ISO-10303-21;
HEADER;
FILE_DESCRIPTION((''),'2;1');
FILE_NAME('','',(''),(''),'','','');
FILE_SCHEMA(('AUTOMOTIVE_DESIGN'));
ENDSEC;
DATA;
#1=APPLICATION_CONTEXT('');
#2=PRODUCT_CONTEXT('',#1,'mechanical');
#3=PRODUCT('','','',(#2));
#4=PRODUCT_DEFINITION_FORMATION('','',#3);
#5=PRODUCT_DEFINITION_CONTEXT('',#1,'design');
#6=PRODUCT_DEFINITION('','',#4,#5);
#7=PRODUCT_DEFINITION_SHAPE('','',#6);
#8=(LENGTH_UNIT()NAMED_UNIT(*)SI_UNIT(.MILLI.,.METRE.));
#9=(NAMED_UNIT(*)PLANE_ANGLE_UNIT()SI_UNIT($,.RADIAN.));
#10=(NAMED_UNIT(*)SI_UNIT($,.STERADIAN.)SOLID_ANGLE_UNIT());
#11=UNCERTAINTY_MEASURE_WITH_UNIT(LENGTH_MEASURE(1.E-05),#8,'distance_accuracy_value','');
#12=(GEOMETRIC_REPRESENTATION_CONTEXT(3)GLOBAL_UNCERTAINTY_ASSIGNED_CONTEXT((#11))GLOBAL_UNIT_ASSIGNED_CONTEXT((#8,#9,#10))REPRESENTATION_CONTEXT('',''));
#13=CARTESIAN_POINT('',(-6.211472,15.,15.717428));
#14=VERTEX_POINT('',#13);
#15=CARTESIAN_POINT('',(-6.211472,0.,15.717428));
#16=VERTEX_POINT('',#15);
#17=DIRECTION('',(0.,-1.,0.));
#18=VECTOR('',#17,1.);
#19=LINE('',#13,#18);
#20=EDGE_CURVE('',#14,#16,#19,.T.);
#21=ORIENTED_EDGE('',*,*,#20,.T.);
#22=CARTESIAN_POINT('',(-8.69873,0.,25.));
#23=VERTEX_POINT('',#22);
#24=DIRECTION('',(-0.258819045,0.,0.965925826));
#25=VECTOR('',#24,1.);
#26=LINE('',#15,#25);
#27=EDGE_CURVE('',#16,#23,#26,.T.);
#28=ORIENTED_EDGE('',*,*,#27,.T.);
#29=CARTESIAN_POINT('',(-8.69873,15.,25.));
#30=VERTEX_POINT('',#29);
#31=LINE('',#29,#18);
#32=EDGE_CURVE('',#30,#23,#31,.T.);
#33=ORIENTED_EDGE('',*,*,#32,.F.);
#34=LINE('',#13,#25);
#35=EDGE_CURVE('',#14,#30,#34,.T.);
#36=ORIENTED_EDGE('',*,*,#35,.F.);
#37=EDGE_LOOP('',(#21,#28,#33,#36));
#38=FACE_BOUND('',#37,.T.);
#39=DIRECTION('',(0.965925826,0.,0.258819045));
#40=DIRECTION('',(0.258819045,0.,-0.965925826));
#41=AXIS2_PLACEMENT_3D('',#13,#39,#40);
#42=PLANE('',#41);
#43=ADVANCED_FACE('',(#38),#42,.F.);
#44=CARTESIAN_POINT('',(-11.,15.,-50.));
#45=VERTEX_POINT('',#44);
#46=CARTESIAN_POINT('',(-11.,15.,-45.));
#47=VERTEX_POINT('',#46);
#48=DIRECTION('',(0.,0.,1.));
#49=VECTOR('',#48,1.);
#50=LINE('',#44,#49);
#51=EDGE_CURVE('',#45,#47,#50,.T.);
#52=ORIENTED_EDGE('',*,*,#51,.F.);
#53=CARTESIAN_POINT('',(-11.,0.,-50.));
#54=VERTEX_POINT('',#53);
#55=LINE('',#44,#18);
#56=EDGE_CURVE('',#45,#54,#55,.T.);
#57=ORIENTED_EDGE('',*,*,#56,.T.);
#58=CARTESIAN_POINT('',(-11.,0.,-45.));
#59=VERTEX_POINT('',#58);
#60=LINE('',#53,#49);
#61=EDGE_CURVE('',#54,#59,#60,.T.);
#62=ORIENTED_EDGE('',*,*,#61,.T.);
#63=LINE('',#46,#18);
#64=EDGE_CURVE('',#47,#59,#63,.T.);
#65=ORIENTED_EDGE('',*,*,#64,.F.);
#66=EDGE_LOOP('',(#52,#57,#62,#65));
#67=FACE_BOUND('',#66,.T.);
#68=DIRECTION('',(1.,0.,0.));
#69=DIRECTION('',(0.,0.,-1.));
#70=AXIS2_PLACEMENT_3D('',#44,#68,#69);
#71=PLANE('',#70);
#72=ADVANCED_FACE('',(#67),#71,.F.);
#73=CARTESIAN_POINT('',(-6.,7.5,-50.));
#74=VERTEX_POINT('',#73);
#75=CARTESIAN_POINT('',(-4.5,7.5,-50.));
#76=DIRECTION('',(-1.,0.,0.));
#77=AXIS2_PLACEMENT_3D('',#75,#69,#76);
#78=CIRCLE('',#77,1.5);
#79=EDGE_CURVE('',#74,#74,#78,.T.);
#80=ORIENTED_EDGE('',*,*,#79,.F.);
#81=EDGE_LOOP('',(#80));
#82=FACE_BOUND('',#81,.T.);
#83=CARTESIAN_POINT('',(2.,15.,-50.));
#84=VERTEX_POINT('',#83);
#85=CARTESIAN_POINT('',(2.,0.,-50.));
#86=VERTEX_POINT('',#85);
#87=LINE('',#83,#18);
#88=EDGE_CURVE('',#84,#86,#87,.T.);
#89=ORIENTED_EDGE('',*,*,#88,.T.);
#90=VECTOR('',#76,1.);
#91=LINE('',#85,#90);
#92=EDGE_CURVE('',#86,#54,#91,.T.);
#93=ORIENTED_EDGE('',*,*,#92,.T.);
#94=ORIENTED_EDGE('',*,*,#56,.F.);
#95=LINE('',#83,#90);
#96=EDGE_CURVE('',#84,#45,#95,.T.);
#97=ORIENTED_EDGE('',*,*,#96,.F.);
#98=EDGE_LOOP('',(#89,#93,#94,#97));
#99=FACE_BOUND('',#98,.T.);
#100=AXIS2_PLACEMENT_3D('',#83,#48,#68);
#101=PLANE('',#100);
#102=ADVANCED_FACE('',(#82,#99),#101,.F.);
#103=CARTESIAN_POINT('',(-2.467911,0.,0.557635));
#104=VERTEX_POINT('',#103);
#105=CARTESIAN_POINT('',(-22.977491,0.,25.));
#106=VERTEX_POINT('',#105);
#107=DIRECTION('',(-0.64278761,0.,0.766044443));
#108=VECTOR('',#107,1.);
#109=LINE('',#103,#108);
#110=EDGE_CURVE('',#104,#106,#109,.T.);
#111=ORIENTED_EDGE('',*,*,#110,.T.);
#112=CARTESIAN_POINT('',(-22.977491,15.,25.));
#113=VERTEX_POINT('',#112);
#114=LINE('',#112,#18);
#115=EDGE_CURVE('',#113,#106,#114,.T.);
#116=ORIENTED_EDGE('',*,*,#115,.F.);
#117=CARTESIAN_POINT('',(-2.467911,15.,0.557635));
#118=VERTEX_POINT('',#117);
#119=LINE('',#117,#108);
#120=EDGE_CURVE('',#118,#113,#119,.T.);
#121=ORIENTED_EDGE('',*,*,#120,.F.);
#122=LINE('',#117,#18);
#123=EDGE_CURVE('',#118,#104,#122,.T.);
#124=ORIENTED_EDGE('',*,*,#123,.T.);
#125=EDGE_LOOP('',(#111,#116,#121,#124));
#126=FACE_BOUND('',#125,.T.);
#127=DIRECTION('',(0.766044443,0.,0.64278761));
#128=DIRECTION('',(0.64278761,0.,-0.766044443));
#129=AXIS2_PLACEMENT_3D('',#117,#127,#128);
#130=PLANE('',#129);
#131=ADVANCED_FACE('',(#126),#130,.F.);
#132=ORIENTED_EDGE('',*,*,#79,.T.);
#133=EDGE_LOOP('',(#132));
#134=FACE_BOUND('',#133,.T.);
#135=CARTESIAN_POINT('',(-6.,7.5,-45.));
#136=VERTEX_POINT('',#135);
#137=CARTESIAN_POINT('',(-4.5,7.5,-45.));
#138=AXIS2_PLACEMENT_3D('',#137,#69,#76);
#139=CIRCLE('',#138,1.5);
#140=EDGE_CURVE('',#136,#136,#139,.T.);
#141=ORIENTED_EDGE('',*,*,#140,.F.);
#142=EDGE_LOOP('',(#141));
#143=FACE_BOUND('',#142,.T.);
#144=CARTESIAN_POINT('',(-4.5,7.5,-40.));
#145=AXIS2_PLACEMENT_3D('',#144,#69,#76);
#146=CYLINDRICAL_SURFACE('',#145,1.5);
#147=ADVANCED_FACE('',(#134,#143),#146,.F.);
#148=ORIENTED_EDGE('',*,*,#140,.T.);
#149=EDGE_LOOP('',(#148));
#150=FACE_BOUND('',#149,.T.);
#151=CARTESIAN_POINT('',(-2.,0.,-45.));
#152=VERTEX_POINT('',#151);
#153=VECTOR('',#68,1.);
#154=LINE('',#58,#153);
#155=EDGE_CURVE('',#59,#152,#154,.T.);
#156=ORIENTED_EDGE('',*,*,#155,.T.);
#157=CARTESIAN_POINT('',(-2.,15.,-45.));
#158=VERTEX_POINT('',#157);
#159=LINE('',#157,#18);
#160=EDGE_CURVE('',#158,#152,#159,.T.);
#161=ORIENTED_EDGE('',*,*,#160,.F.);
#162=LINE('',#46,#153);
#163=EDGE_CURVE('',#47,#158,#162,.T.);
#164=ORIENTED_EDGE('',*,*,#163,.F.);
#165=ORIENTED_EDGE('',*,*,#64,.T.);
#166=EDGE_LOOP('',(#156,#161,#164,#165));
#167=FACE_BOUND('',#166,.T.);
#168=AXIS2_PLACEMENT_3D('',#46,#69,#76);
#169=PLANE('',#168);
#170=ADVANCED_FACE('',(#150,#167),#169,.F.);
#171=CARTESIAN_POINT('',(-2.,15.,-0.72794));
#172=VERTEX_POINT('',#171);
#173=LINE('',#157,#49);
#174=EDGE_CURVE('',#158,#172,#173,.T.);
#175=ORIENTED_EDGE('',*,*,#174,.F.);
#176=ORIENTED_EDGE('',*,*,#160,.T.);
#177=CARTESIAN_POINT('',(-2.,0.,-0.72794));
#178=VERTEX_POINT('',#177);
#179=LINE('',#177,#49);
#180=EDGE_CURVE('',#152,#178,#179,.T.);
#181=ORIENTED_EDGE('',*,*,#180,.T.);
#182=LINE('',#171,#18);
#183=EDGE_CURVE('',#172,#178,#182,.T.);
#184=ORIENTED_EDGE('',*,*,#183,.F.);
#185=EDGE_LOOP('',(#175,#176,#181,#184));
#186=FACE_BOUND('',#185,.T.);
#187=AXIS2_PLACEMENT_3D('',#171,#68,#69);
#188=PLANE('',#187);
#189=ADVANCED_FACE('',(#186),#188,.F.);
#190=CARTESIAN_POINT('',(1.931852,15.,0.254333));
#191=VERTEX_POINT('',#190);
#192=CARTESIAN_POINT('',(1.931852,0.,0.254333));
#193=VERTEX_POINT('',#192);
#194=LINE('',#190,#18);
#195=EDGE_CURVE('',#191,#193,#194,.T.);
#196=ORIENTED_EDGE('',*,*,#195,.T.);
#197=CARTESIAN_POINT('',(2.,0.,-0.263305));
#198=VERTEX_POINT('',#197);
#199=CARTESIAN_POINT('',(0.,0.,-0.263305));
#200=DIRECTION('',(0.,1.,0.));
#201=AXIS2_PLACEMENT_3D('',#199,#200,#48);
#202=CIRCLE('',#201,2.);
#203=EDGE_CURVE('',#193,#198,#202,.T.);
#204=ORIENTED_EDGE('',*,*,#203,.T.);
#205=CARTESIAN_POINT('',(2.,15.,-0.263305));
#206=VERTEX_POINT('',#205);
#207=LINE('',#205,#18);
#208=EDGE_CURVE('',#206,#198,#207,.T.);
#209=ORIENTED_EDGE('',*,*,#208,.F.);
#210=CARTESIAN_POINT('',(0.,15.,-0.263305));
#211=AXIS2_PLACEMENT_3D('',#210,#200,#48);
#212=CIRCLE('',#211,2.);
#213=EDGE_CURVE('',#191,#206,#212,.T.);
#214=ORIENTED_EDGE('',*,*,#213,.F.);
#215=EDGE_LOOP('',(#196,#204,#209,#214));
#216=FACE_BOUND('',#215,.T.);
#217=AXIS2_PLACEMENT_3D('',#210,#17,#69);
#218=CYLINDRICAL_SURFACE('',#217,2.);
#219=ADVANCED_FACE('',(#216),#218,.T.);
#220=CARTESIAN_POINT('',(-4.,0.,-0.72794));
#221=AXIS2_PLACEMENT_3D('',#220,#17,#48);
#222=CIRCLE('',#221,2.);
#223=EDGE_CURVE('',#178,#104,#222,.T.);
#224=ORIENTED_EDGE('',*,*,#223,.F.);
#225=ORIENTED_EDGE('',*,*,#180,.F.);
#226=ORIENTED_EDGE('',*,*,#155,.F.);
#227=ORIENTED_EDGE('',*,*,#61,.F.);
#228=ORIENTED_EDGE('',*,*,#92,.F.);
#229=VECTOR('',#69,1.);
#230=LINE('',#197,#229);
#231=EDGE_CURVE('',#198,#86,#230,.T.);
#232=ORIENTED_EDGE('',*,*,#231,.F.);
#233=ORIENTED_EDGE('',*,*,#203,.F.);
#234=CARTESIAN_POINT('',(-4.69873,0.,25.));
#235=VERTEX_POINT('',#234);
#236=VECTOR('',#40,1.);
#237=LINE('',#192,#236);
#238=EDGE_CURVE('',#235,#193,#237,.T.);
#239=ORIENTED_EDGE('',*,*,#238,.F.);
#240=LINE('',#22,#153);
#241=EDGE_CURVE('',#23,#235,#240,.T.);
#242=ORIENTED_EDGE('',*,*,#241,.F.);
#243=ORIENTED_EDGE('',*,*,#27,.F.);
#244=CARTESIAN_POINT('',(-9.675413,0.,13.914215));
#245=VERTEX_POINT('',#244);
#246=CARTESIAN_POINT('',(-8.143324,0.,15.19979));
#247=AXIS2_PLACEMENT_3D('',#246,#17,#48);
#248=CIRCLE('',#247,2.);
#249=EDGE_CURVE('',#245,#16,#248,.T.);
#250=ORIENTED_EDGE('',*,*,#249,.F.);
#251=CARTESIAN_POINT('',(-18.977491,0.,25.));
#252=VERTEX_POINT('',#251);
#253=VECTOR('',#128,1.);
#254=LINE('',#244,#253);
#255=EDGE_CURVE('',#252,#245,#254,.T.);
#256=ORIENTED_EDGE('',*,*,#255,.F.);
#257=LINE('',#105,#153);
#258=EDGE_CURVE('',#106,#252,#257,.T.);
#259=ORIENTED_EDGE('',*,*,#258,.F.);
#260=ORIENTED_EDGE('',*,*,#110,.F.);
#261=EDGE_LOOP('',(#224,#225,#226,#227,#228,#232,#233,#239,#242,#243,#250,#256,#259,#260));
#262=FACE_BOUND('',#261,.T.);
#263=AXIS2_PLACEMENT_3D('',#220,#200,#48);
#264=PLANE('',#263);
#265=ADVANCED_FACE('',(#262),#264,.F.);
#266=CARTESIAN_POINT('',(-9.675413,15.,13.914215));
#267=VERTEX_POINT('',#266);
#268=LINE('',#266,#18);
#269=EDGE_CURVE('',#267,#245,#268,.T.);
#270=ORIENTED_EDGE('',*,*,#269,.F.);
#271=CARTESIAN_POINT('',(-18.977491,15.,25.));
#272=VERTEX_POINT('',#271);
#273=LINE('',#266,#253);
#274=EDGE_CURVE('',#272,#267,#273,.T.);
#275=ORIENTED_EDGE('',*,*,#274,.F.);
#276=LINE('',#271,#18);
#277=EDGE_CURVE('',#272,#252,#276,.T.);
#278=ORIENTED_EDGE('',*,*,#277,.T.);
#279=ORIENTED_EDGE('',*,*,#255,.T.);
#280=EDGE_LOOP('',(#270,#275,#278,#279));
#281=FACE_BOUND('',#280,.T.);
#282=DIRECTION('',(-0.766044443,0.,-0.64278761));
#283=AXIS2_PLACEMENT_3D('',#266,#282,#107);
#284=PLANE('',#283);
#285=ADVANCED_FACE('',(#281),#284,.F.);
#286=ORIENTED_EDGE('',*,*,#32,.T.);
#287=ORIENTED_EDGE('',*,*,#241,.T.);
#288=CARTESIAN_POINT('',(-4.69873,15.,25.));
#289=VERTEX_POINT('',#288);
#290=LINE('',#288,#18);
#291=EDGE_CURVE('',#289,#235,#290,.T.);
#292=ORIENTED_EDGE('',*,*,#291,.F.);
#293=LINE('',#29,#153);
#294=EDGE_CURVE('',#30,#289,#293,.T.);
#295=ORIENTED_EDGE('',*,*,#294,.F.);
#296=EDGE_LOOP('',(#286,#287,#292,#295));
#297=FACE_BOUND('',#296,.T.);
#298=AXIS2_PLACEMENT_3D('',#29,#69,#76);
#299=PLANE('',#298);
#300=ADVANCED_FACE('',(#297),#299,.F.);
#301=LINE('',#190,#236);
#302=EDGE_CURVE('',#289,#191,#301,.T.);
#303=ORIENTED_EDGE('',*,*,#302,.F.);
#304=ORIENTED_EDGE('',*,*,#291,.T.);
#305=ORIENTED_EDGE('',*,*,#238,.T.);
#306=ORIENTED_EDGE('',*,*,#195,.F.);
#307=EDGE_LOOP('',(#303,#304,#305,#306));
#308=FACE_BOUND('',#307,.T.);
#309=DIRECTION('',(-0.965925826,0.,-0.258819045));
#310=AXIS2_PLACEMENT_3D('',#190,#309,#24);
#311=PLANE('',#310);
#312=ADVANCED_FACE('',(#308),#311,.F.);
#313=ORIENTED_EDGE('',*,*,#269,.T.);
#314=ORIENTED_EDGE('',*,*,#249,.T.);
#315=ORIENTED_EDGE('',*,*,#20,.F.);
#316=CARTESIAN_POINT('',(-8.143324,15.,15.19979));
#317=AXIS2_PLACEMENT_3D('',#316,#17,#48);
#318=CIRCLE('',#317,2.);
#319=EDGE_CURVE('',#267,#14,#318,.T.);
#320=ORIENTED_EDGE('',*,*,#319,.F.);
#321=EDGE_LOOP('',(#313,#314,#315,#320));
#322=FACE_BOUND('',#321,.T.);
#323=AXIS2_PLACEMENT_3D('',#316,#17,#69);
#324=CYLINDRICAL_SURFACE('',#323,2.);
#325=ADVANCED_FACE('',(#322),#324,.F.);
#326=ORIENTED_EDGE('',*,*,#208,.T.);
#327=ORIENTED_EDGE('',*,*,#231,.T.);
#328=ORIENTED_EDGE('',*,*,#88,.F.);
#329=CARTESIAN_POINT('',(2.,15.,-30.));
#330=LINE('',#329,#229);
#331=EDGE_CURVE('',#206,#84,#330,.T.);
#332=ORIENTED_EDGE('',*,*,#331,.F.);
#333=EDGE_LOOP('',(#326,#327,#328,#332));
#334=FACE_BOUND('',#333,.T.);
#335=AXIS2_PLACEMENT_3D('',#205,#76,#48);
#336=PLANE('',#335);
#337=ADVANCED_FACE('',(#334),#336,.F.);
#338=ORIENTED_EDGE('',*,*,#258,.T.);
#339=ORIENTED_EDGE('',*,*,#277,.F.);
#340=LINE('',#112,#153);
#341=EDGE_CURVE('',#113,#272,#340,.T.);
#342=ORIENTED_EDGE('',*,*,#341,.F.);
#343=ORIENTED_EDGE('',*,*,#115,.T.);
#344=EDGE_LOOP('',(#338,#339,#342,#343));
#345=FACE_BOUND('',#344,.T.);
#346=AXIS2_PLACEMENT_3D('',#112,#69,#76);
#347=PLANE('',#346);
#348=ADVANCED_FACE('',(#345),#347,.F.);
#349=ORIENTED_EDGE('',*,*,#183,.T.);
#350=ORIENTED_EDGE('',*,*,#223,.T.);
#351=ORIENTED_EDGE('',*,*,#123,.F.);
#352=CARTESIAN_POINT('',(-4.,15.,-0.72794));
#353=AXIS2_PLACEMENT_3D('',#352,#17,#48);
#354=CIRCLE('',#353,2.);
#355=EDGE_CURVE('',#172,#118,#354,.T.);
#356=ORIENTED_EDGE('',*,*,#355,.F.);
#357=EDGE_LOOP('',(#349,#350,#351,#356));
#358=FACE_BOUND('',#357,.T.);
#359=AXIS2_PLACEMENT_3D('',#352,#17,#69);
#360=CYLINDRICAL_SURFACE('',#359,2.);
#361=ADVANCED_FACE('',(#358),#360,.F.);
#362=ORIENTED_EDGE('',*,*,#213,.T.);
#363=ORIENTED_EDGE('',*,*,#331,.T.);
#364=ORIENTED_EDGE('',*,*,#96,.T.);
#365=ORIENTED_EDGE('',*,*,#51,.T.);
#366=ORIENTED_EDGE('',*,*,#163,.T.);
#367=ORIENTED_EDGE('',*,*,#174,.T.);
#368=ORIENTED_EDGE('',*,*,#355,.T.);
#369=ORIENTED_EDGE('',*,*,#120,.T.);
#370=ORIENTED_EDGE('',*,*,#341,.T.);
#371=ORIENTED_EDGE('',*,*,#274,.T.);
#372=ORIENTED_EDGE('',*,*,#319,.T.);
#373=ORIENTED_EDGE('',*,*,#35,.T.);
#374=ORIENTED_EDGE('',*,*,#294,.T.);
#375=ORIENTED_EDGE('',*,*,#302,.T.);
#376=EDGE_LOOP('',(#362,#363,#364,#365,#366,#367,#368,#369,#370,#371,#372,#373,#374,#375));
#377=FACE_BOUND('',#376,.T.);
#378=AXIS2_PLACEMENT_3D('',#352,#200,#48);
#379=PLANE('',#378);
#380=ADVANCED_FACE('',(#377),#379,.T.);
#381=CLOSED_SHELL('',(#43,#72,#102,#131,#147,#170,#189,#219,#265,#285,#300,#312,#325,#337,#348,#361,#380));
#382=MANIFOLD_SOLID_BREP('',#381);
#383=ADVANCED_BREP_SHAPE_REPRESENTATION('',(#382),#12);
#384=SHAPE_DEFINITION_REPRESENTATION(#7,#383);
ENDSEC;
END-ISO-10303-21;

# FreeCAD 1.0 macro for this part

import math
import FreeCAD as App
import Part
import Sketcher
from FreeCAD import Vector
Q = App.Units.Quantity

doc = App.newDocument("Part")
body = doc.addObject("PartDesign::Body", "Body")

# Sketch on XZ plane
sketch1 = body.newObject("Sketcher::SketchObject", "Sketch")
sketch1.AttachmentSupport = (doc.getObject("XZ_Plane"), [""])
sketch1.MapMode = "FlatFace"
sketch1.addGeometry(Part.LineSegment(Vector(-2, -45, 0), Vector(-2, -0.72794, 0)), False)
sketch1.addGeometry(Part.ArcOfCircle(Part.Circle(Vector(-4, -0.72794, 0), Vector(0, 0, 1), 2), math.radians(0), math.radians(40)), False)
sketch1.addGeometry(Part.LineSegment(Vector(-2.467911, 0.557635, 0), Vector(-22.977491, 25, 0)), False)
sketch1.addGeometry(Part.LineSegment(Vector(-22.977491, 25, 0), Vector(-18.977491, 25, 0)), False)
sketch1.addGeometry(Part.LineSegment(Vector(-18.977491, 25, 0), Vector(-9.675413, 13.914215, 0)), False)
sketch1.addGeometry(Part.ArcOfCircle(Part.Circle(Vector(-8.143324, 15.19979, 0), Vector(0, 0, 1), 2), math.radians(-140), math.radians(15)), False)
sketch1.addGeometry(Part.LineSegment(Vector(-6.211472, 15.717428, 0), Vector(-8.69873, 25, 0)), False)
sketch1.addGeometry(Part.LineSegment(Vector(-8.69873, 25, 0), Vector(-4.69873, 25, 0)), False)
sketch1.addGeometry(Part.LineSegment(Vector(-4.69873, 25, 0), Vector(1.931852, 0.254333, 0)), False)
sketch1.addGeometry(Part.ArcOfCircle(Part.Circle(Vector(0, -0.263305, 0), Vector(0, 0, 1), 2), math.radians(0), math.radians(15)), False)
sketch1.addGeometry(Part.LineSegment(Vector(2, -0.263305, 0), Vector(2, -50, 0)), False)
sketch1.addGeometry(Part.LineSegment(Vector(2, -50, 0), Vector(-11, -50, 0)), False)
sketch1.addGeometry(Part.LineSegment(Vector(-11, -50, 0), Vector(-11, -45, 0)), False)
sketch1.addGeometry(Part.LineSegment(Vector(-11, -45, 0), Vector(-2, -45, 0)), False)
sketch1.addConstraint(Sketcher.Constraint("Tangent", 0, 2, 1, 1))
sketch1.addConstraint(Sketcher.Constraint("Tangent", 1, 2, 2, 1))
sketch1.addConstraint(Sketcher.Constraint("Coincident", 2, 2, 3, 1))
sketch1.addConstraint(Sketcher.Constraint("Coincident", 3, 2, 4, 1))
sketch1.addConstraint(Sketcher.Constraint("Tangent", 4, 2, 5, 1))
sketch1.addConstraint(Sketcher.Constraint("Tangent", 5, 2, 6, 1))
sketch1.addConstraint(Sketcher.Constraint("Coincident", 6, 2, 7, 1))
sketch1.addConstraint(Sketcher.Constraint("Coincident", 7, 2, 8, 1))
sketch1.addConstraint(Sketcher.Constraint("Tangent", 8, 2, 9, 2))
sketch1.addConstraint(Sketcher.Constraint("Tangent", 9, 1, 10, 1))
sketch1.addConstraint(Sketcher.Constraint("Coincident", 10, 2, 11, 1))
sketch1.addConstraint(Sketcher.Constraint("Coincident", 11, 2, 12, 1))
sketch1.addConstraint(Sketcher.Constraint("Coincident", 12, 2, 13, 1))
sketch1.addConstraint(Sketcher.Constraint("Coincident", 13, 2, 0, 1))
sketch1.addConstraint(Sketcher.Constraint("Vertical", 0))
sketch1.addConstraint(Sketcher.Constraint("Horizontal", 3))
sketch1.addConstraint(Sketcher.Constraint("Horizontal", 7))
sketch1.addConstraint(Sketcher.Constraint("Vertical", 10))
sketch1.addConstraint(Sketcher.Constraint("Horizontal", 11))
sketch1.addConstraint(Sketcher.Constraint("Vertical", 12))
sketch1.addConstraint(Sketcher.Constraint("Horizontal", 13))
sketch1.addConstraint(Sketcher.Constraint("Equal", 1, 5))
sketch1.addConstraint(Sketcher.Constraint("Equal", 5, 9))
sketch1.addConstraint(Sketcher.Constraint("PointOnObject", 9, 3, -2))
sketch1.addConstraint(Sketcher.Constraint("Parallel", 2, 4))
sketch1.addConstraint(Sketcher.Constraint("Parallel", 6, 8))
sketch1.addConstraint(Sketcher.Constraint("Horizontal", 3, 2, 6, 2))
sketch1.addConstraint(Sketcher.Constraint("Equal", 3, 7))
sketch1.addConstraint(Sketcher.Constraint("Radius", 1, 2.0))
sketch1.addConstraint(Sketcher.Constraint("DistanceX", 3, 1, 3, 2, 4.0))
sketch1.addConstraint(Sketcher.Constraint("DistanceX", 11, 2, 11, 1, 13.0))
sketch1.addConstraint(Sketcher.Constraint("DistanceX", 13, 1, 13, 2, 9.0))
sketch1.addConstraint(Sketcher.Constraint("DistanceY", 12, 1, 12, 2, 5.0))
sketch1.addConstraint(Sketcher.Constraint("Angle", 2, Q("130 deg")))
sketch1.addConstraint(Sketcher.Constraint("Angle", 6, Q("105 deg")))
sketch1.addConstraint(Sketcher.Constraint("DistanceY", -1, 1, 2, 2, 25.0))
sketch1.addConstraint(Sketcher.Constraint("DistanceY", 10, 2, -1, 1, 50.0))
sketch1.addConstraint(Sketcher.Constraint("Distance", 8, 25.6186))
sketch1.addConstraint(Sketcher.Constraint("DistanceY", 0, 1, 0, 2, 44.27206))
pad1 = body.newObject("PartDesign::Pad", "Pad")
pad1.Profile = sketch1
pad1.Length = 15
pad1.Reversed = True

# Sketch on XY plane
sketch2 = body.newObject("Sketcher::SketchObject", "Sketch001")
sketch2.AttachmentSupport = (doc.getObject("XY_Plane"), [""])
sketch2.MapMode = "FlatFace"
sketch2.AttachmentOffset = App.Placement(Vector(0, 0, -50), App.Rotation())
sketch2.addGeometry(Part.Circle(Vector(-4.5, 7.5, 0), Vector(0, 0, 1), 1.5), False)
sketch2.addConstraint(Sketcher.Constraint("Diameter", 0, 3.0))
sketch2.addConstraint(Sketcher.Constraint("DistanceX", 0, 3, -1, 1, 4.5))
sketch2.addConstraint(Sketcher.Constraint("DistanceY", -1, 1, 0, 3, 7.5))
pocket1 = body.newObject("PartDesign::Pocket", "Pocket")
pocket1.Profile = sketch2
pocket1.Length = 10
pocket1.Reversed = True

doc.recompute()
